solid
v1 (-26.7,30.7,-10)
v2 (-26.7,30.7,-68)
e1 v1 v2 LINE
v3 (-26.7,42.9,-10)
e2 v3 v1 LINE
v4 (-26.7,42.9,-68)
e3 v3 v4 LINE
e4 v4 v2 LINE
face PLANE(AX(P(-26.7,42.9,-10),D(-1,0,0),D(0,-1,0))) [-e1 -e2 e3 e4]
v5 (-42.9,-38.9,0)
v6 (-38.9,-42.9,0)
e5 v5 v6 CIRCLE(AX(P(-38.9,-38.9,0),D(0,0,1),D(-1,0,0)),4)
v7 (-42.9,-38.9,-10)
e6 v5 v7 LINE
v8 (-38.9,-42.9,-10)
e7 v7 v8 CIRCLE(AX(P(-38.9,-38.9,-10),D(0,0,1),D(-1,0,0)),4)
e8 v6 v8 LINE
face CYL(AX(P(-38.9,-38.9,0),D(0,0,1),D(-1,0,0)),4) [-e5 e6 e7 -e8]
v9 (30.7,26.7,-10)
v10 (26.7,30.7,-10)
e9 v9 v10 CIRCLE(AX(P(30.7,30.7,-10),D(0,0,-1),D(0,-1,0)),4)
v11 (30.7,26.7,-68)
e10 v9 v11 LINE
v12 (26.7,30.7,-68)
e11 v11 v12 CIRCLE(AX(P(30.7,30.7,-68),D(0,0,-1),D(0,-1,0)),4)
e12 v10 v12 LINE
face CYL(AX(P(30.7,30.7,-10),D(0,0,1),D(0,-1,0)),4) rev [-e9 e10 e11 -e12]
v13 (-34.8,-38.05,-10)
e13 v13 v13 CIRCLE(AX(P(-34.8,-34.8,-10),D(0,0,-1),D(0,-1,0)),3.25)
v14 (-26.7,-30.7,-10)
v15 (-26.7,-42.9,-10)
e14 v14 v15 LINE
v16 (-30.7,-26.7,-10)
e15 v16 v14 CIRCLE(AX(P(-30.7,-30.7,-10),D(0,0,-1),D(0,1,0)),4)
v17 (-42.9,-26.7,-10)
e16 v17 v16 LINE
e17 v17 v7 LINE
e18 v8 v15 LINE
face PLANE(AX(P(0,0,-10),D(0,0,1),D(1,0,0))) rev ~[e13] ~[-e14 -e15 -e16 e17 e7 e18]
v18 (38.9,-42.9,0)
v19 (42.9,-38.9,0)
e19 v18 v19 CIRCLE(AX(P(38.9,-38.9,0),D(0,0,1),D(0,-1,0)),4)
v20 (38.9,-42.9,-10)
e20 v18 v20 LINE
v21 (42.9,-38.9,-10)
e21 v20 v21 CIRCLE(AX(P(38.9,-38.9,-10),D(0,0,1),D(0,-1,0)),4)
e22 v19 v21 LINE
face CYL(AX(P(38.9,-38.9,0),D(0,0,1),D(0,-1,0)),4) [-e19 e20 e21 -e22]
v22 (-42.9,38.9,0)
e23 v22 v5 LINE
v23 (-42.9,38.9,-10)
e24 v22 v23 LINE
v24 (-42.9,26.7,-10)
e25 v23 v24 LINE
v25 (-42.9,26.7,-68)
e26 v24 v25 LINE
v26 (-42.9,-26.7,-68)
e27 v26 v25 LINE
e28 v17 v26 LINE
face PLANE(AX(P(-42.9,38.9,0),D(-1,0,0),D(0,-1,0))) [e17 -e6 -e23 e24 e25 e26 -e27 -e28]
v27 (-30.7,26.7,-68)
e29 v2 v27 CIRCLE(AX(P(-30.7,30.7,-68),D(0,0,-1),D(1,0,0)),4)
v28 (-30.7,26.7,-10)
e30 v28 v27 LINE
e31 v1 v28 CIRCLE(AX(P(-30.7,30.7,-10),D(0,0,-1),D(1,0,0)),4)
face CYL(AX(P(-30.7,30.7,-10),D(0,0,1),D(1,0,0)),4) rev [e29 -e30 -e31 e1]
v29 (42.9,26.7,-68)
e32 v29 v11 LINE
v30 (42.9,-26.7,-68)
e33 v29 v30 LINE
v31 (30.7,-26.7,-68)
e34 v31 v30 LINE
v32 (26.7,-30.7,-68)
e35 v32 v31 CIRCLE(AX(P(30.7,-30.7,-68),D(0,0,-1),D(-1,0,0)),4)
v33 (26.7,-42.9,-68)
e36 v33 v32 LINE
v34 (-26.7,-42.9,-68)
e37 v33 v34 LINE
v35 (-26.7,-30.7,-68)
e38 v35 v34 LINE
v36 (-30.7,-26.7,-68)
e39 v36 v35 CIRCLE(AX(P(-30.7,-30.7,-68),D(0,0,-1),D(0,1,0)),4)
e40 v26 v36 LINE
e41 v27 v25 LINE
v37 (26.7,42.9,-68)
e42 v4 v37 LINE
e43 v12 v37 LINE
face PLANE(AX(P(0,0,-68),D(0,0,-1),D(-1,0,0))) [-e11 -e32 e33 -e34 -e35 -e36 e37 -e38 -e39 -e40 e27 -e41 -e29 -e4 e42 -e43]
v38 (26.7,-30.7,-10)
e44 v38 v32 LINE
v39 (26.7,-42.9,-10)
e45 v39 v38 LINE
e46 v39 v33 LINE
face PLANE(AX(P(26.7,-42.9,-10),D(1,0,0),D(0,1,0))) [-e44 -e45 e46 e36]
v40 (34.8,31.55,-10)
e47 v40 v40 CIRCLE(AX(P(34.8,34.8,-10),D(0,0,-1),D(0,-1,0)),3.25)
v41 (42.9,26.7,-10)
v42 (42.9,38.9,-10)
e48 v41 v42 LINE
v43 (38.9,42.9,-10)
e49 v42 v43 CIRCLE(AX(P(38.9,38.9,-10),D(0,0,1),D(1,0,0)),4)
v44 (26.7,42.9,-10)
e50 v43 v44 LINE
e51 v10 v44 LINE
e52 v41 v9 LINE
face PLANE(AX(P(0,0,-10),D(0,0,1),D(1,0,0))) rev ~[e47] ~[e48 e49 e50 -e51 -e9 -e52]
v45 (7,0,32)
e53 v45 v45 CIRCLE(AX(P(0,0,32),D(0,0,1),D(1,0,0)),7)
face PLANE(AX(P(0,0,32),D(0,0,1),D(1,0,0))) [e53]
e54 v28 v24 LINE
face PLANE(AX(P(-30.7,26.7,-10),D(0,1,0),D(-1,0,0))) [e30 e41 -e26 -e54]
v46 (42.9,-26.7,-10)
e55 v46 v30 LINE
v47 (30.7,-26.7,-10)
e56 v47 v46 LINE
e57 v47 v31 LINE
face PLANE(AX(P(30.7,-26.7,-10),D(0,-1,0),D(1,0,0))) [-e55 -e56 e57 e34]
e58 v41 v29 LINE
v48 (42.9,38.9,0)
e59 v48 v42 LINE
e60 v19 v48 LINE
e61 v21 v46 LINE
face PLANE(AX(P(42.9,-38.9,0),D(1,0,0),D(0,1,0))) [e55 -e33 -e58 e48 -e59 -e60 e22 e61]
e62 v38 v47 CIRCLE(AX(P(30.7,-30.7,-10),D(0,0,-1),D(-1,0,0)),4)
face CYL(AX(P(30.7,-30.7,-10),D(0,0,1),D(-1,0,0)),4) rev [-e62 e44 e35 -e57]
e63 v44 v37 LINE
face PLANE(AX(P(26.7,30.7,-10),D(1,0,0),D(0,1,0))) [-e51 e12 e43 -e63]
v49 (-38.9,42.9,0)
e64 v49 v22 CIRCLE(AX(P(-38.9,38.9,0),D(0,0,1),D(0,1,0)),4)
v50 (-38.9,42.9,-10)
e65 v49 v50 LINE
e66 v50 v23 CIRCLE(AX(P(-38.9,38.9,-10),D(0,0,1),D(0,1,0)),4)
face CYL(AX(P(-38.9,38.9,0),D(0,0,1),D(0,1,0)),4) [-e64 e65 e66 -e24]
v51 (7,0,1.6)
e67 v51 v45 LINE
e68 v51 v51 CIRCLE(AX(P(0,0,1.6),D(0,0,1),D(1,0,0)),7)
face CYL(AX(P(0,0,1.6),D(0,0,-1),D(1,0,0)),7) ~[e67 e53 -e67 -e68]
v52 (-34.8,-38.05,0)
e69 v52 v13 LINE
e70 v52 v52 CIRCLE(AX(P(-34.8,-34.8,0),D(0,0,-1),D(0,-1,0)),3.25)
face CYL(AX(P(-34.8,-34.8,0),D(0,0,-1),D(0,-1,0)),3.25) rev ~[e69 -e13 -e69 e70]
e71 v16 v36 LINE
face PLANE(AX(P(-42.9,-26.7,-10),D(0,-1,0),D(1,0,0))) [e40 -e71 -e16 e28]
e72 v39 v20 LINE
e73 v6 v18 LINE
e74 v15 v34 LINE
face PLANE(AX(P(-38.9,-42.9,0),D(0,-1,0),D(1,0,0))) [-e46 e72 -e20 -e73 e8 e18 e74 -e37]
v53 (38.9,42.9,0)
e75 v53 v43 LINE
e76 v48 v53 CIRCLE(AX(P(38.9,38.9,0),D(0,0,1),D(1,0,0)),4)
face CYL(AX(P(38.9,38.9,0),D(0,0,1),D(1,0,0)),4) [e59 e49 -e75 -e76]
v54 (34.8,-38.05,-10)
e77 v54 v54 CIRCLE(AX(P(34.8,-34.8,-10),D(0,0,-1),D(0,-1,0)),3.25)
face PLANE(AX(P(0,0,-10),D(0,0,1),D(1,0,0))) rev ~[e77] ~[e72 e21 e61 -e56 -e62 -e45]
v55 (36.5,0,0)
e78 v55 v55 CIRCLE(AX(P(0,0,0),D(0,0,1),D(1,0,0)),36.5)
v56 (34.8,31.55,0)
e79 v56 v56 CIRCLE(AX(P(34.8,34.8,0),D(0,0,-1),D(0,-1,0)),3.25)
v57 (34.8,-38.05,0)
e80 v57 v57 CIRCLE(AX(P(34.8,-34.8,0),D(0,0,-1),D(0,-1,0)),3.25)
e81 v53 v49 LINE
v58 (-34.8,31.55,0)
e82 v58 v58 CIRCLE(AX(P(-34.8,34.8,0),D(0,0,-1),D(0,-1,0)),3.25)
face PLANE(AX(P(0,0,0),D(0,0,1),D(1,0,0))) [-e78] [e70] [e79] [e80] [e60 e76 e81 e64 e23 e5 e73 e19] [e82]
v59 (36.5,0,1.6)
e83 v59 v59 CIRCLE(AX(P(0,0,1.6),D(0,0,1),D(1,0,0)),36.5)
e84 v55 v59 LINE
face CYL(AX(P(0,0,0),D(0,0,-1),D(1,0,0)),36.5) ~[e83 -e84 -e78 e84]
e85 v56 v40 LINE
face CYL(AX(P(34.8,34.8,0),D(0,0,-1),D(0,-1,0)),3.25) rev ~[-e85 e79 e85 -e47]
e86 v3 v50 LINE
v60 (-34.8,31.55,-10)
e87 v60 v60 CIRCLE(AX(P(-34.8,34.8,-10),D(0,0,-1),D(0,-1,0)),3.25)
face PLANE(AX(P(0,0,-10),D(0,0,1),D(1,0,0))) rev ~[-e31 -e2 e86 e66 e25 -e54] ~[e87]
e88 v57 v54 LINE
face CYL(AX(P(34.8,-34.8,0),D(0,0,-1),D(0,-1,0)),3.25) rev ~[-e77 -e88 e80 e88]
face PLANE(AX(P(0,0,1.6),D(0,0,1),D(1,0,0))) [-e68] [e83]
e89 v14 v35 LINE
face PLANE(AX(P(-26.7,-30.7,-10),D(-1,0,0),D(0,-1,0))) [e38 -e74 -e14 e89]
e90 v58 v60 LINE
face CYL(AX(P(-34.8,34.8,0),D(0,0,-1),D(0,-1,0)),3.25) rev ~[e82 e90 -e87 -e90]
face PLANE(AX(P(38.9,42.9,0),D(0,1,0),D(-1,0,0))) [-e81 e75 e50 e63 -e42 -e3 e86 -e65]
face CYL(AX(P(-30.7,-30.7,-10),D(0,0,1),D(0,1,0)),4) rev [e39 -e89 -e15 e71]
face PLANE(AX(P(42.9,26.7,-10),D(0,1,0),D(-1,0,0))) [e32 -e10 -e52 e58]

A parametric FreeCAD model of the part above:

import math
import FreeCAD as App
import Part
import Sketcher

doc = App.newDocument("Part")
params = doc.addObject("Spreadsheet::Sheet", "Params")
for row, (alias, value) in enumerate([
    ("sketch1_radius", "4 mm"),
    ("sketch1_width", "77.8 mm"),
    ("pad1_length", "10 mm"),
    ("sketch2_diameter", "73 mm"),
    ("pad2_length", "1.6 mm"),
    ("sketch3_radius", "4 mm"),
    ("sketch3_width", "12.2 mm"),
    ("sketch3_width2", "53.4 mm"),
    ("pad3_length", "58 mm"),
    ("sketch4_diameter", "6.5 mm"),
    ("hole_diameter", "6.5 mm"),
    ("sketch5_diameter", "14 mm"),
    ("pad4_length", "30.4 mm"),
], start=1):
    params.set(f"A{row}", alias)
    params.set(f"B{row}", "=" + value)
    params.setAlias(f"B{row}", alias)

body = doc.addObject("PartDesign::Body", "Body")

sketch1 = body.newObject("Sketcher::SketchObject", "Sketch")
sketch1.AttachmentSupport = (doc.getObject("XY_Plane"), [""])
sketch1.MapMode = "FlatFace"
sketch1.addGeometry([
    Part.ArcOfCircle(Part.Circle(App.Vector(-38.9, -38.9, 0), App.Vector(0, 0, 1), 4), math.radians(180), math.radians(270)),
    Part.LineSegment(App.Vector(-38.9, -42.9, 0), App.Vector(38.9, -42.9, 0)),
    Part.ArcOfCircle(Part.Circle(App.Vector(38.9, -38.9, 0), App.Vector(0, 0, 1), 4), math.radians(-90), math.radians(0)),
    Part.LineSegment(App.Vector(42.9, -38.9, 0), App.Vector(42.9, 38.9, 0)),
    Part.ArcOfCircle(Part.Circle(App.Vector(38.9, 38.9, 0), App.Vector(0, 0, 1), 4), math.radians(0), math.radians(90)),
    Part.LineSegment(App.Vector(38.9, 42.9, 0), App.Vector(-38.9, 42.9, 0)),
    Part.ArcOfCircle(Part.Circle(App.Vector(-38.9, 38.9, 0), App.Vector(0, 0, 1), 4), math.radians(90), math.radians(180)),
    Part.LineSegment(App.Vector(-42.9, 38.9, 0), App.Vector(-42.9, -38.9, 0)),
], False)
sketch1.addConstraint([
    Sketcher.Constraint("Tangent", 0, 2, 1, 1),
    Sketcher.Constraint("Tangent", 1, 2, 2, 1),
    Sketcher.Constraint("Tangent", 2, 2, 3, 1),
    Sketcher.Constraint("Tangent", 3, 2, 4, 1),
    Sketcher.Constraint("Tangent", 4, 2, 5, 1),
    Sketcher.Constraint("Tangent", 5, 2, 6, 1),
    Sketcher.Constraint("Tangent", 6, 2, 7, 1),
    Sketcher.Constraint("Tangent", 7, 2, 0, 1),
    Sketcher.Constraint("Horizontal", 1),
    Sketcher.Constraint("Vertical", 3),
    Sketcher.Constraint("Horizontal", 5),
    Sketcher.Constraint("Vertical", 7),
    Sketcher.Constraint("Equal", 0, 2),
    Sketcher.Constraint("Equal", 2, 4),
    Sketcher.Constraint("Equal", 4, 6),
    Sketcher.Constraint("Symmetric", 0, 3, 4, 3, -1, 1),
    Sketcher.Constraint("Equal", 5, 3),
    Sketcher.Constraint("Radius", 0, 4.0),
    Sketcher.Constraint("DistanceX", 1, 1, 1, 2, 77.8),
])
sketch1.setExpression("Constraints[17]", "Params.sketch1_radius")
sketch1.setExpression("Constraints[18]", "Params.sketch1_width")
pad1 = body.newObject("PartDesign::Pad", "Pad")
pad1.Profile = sketch1
pad1.setExpression("Length", "Params.pad1_length")
pad1.Reversed = True

sketch2 = body.newObject("Sketcher::SketchObject", "Sketch001")
sketch2.AttachmentSupport = (doc.getObject("XY_Plane"), [""])
sketch2.MapMode = "FlatFace"
sketch2.addGeometry(Part.Circle(App.Vector(0, 0, 0), App.Vector(0, 0, 1), 36), False)
sketch2.addConstraint([
    Sketcher.Constraint("Coincident", 0, 3, -1, 1),
    Sketcher.Constraint("Diameter", 0, 73.0),
])
sketch2.setExpression("Constraints[1]", "Params.sketch2_diameter")
pad2 = body.newObject("PartDesign::Pad", "Pad001")
pad2.Profile = sketch2
pad2.setExpression("Length", "Params.pad2_length")

sketch3 = body.newObject("Sketcher::SketchObject", "Sketch002")
sketch3.AttachmentSupport = (doc.getObject("XY_Plane"), [""])
sketch3.MapMode = "FlatFace"
sketch3.AttachmentOffset = App.Placement(App.Vector(0, 0, -10), App.Rotation())
sketch3.addGeometry([
    Part.LineSegment(App.Vector(30.7, 26.7, 0), App.Vector(42.9, 26.7, 0)),
    Part.LineSegment(App.Vector(42.9, 26.7, 0), App.Vector(42.9, -26.7, 0)),
    Part.LineSegment(App.Vector(42.9, -26.7, 0), App.Vector(30.7, -26.7, 0)),
    Part.ArcOfCircle(Part.Circle(App.Vector(30.7, -30.7, 0), App.Vector(0, 0, 1), 4), math.radians(90), math.radians(180)),
    Part.LineSegment(App.Vector(26.7, -30.7, 0), App.Vector(26.7, -42.9, 0)),
    Part.LineSegment(App.Vector(26.7, -42.9, 0), App.Vector(-26.7, -42.9, 0)),
    Part.LineSegment(App.Vector(-26.7, -42.9, 0), App.Vector(-26.7, -30.7, 0)),
    Part.ArcOfCircle(Part.Circle(App.Vector(-30.7, -30.7, 0), App.Vector(0, 0, 1), 4), math.radians(0), math.radians(90)),
    Part.LineSegment(App.Vector(-30.7, -26.7, 0), App.Vector(-42.9, -26.7, 0)),
    Part.LineSegment(App.Vector(-42.9, -26.7, 0), App.Vector(-42.9, 26.7, 0)),
    Part.LineSegment(App.Vector(-42.9, 26.7, 0), App.Vector(-30.7, 26.7, 0)),
    Part.ArcOfCircle(Part.Circle(App.Vector(-30.7, 30.7, 0), App.Vector(0, 0, 1), 4), math.radians(-90), math.radians(0)),
    Part.LineSegment(App.Vector(-26.7, 30.7, 0), App.Vector(-26.7, 42.9, 0)),
    Part.LineSegment(App.Vector(-26.7, 42.9, 0), App.Vector(26.7, 42.9, 0)),
    Part.LineSegment(App.Vector(26.7, 42.9, 0), App.Vector(26.7, 30.7, 0)),
    Part.ArcOfCircle(Part.Circle(App.Vector(30.7, 30.7, 0), App.Vector(0, 0, 1), 4), math.radians(180), math.radians(270)),
], False)
sketch3.addConstraint([
    Sketcher.Constraint("Coincident", 0, 2, 1, 1),
    Sketcher.Constraint("Coincident", 1, 2, 2, 1),
    Sketcher.Constraint("Tangent", 2, 2, 3, 1),
    Sketcher.Constraint("Tangent", 3, 2, 4, 1),
    Sketcher.Constraint("Coincident", 4, 2, 5, 1),
    Sketcher.Constraint("Coincident", 5, 2, 6, 1),
    Sketcher.Constraint("Tangent", 6, 2, 7, 1),
    Sketcher.Constraint("Tangent", 7, 2, 8, 1),
    Sketcher.Constraint("Coincident", 8, 2, 9, 1),
    Sketcher.Constraint("Coincident", 9, 2, 10, 1),
    Sketcher.Constraint("Tangent", 10, 2, 11, 1),
    Sketcher.Constraint("Tangent", 11, 2, 12, 1),
    Sketcher.Constraint("Coincident", 12, 2, 13, 1),
    Sketcher.Constraint("Coincident", 13, 2, 14, 1),
    Sketcher.Constraint("Tangent", 14, 2, 15, 1),
    Sketcher.Constraint("Tangent", 15, 2, 0, 1),
    Sketcher.Constraint("Horizontal", 0),
    Sketcher.Constraint("Vertical", 1),
    Sketcher.Constraint("Horizontal", 2),
    Sketcher.Constraint("Vertical", 4),
    Sketcher.Constraint("Horizontal", 5),
    Sketcher.Constraint("Vertical", 6),
    Sketcher.Constraint("Horizontal", 8),
    Sketcher.Constraint("Vertical", 9),
    Sketcher.Constraint("Horizontal", 10),
    Sketcher.Constraint("Vertical", 12),
    Sketcher.Constraint("Horizontal", 13),
    Sketcher.Constraint("Vertical", 14),
    Sketcher.Constraint("Equal", 3, 7),
    Sketcher.Constraint("Equal", 7, 11),
    Sketcher.Constraint("Equal", 11, 15),
    Sketcher.Constraint("Symmetric", 3, 3, 11, 3, -1, 1),
    Sketcher.Constraint("Symmetric", 7, 3, 15, 3, -1, 1),
    Sketcher.Constraint("Symmetric", 3, 3, 7, 3, -2),
    Sketcher.Constraint("Equal", 2, 8),
    Sketcher.Constraint("Equal", 13, 1),
    Sketcher.Constraint("Equal", 10, 4),
    Sketcher.Constraint("Equal", 6, 12),
    Sketcher.Constraint("Radius", 3, 4.0),
    Sketcher.Constraint("DistanceX", 0, 1, 0, 2, 12.2),
    Sketcher.Constraint("DistanceX", 5, 2, 5, 1, 53.4),
])
sketch3.setExpression("Constraints[38]", "Params.sketch3_radius")
sketch3.setExpression("Constraints[39]", "Params.sketch3_width")
sketch3.setExpression("Constraints[40]", "Params.sketch3_width2")
pad3 = body.newObject("PartDesign::Pad", "Pad002")
pad3.Profile = sketch3
pad3.setExpression("Length", "Params.pad3_length")
pad3.Reversed = True

sketch4 = body.newObject("Sketcher::SketchObject", "Sketch003")
sketch4.AttachmentSupport = (doc.getObject("XY_Plane"), [""])
sketch4.MapMode = "FlatFace"
sketch4.addGeometry([
    Part.Circle(App.Vector(34.8, 34.8, 0), App.Vector(0, 0, 1), 3.2),
    Part.Circle(App.Vector(-34.8, 34.8, 0), App.Vector(0, 0, 1), 3.2),
    Part.Circle(App.Vector(-34.8, -34.8, 0), App.Vector(0, 0, 1), 3.2),
    Part.Circle(App.Vector(34.8, -34.8, 0), App.Vector(0, 0, 1), 3.2),
], False)
sketch4.addConstraint([
    Sketcher.Constraint("Equal", 0, 1),
    Sketcher.Constraint("Equal", 1, 2),
    Sketcher.Constraint("Equal", 2, 3),
    Sketcher.Constraint("Symmetric", 0, 3, 2, 3, -1, 1),
    Sketcher.Constraint("Symmetric", 1, 3, 3, 3, -1, 1),
    Sketcher.Constraint("Symmetric", 0, 3, 1, 3, -2),
    Sketcher.Constraint("Diameter", 0, 6.5),
    Sketcher.Constraint("DistanceX", -1, 1, 0, 3, 34.8),
    Sketcher.Constraint("DistanceY", -1, 1, 0, 3, 34.8),
])
sketch4.setExpression("Constraints[6]", "Params.sketch4_diameter")
doc.recompute()
hole = body.newObject("PartDesign::Hole", "Hole")
hole.Profile = sketch4
hole.ThreadType = "None"
hole.setExpression("Diameter", "Params.hole_diameter")
hole.DepthType = "ThroughAll"

sketch5 = body.newObject("Sketcher::SketchObject", "Sketch004")
sketch5.AttachmentSupport = (doc.getObject("XY_Plane"), [""])
sketch5.MapMode = "FlatFace"
sketch5.AttachmentOffset = App.Placement(App.Vector(0, 0, 1.6), App.Rotation())
sketch5.addGeometry(Part.Circle(App.Vector(0, 0, 0), App.Vector(0, 0, 1), 7), False)
sketch5.addConstraint([
    Sketcher.Constraint("Coincident", 0, 3, -1, 1),
    Sketcher.Constraint("Diameter", 0, 14.0),
])
sketch5.setExpression("Constraints[1]", "Params.sketch5_diameter")
pad4 = body.newObject("PartDesign::Pad", "Pad003")
pad4.Profile = sketch5
pad4.setExpression("Length", "Params.pad4_length")

doc.recompute()
